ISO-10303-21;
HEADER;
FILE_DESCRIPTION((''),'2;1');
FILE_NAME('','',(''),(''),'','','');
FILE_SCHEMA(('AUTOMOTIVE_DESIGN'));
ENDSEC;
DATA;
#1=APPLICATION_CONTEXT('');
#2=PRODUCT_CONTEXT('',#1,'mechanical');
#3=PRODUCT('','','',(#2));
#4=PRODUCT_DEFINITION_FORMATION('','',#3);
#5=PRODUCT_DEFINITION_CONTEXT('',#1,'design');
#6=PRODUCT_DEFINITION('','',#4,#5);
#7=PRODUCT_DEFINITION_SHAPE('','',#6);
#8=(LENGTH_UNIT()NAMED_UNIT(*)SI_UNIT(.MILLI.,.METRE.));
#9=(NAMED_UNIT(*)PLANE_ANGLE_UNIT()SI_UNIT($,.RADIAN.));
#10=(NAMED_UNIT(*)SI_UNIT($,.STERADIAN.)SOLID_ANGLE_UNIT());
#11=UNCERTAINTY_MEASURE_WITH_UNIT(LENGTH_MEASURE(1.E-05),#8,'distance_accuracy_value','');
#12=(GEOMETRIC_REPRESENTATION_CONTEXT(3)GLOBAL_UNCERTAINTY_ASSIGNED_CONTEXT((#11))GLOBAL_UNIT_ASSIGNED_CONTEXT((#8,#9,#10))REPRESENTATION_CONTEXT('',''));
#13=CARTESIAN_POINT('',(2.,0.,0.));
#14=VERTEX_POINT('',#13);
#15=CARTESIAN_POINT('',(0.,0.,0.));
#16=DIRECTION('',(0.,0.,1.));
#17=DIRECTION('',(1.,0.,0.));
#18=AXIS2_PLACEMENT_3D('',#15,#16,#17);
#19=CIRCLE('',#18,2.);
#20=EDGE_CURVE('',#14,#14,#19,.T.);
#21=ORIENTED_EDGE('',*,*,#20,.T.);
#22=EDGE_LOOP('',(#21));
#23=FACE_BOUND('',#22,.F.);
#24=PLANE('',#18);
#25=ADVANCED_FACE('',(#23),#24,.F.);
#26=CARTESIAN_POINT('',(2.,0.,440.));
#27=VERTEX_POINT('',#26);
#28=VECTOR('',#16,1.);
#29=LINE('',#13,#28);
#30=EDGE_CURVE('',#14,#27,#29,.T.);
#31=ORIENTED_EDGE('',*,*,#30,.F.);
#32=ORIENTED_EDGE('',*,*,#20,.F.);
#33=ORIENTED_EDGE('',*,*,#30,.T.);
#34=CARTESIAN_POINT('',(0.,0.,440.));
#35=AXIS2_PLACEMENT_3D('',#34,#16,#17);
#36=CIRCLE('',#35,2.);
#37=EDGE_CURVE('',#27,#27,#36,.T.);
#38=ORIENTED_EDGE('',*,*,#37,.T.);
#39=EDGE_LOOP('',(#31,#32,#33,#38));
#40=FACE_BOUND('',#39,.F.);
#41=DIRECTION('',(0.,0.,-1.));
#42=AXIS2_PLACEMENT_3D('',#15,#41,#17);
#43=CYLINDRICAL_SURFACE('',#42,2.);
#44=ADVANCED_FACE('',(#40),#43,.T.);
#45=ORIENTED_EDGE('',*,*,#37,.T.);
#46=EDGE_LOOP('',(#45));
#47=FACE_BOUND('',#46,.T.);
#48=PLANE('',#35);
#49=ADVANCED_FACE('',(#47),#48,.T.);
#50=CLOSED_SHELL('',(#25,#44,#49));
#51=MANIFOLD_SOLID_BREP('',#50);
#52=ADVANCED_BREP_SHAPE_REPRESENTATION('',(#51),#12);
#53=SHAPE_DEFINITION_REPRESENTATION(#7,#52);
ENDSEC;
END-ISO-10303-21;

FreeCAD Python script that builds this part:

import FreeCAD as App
import Part
import Sketcher
Q = App.Units.Quantity

doc = App.newDocument("Part")
body = doc.addObject("PartDesign::Body", "Body")

# Sketch on XY plane
sketch1 = body.newObject("Sketcher::SketchObject", "Sketch")
sketch1.AttachmentSupport = (doc.getObject("XY_Plane"), [""])
sketch1.MapMode = "FlatFace"
sketch1.addGeometry(Part.Circle(App.Vector(0, 0, 0), App.Vector(0, 0, 1), 2), False)
sketch1.addConstraint(Sketcher.Constraint("Coincident", 0, 3, -1, 1))
sketch1.addConstraint(Sketcher.Constraint("Diameter", 0, Q("4 mm")))
pad1 = body.newObject("PartDesign::Pad", "Pad")
pad1.Profile = sketch1
pad1.Length = 440

doc.recompute()
